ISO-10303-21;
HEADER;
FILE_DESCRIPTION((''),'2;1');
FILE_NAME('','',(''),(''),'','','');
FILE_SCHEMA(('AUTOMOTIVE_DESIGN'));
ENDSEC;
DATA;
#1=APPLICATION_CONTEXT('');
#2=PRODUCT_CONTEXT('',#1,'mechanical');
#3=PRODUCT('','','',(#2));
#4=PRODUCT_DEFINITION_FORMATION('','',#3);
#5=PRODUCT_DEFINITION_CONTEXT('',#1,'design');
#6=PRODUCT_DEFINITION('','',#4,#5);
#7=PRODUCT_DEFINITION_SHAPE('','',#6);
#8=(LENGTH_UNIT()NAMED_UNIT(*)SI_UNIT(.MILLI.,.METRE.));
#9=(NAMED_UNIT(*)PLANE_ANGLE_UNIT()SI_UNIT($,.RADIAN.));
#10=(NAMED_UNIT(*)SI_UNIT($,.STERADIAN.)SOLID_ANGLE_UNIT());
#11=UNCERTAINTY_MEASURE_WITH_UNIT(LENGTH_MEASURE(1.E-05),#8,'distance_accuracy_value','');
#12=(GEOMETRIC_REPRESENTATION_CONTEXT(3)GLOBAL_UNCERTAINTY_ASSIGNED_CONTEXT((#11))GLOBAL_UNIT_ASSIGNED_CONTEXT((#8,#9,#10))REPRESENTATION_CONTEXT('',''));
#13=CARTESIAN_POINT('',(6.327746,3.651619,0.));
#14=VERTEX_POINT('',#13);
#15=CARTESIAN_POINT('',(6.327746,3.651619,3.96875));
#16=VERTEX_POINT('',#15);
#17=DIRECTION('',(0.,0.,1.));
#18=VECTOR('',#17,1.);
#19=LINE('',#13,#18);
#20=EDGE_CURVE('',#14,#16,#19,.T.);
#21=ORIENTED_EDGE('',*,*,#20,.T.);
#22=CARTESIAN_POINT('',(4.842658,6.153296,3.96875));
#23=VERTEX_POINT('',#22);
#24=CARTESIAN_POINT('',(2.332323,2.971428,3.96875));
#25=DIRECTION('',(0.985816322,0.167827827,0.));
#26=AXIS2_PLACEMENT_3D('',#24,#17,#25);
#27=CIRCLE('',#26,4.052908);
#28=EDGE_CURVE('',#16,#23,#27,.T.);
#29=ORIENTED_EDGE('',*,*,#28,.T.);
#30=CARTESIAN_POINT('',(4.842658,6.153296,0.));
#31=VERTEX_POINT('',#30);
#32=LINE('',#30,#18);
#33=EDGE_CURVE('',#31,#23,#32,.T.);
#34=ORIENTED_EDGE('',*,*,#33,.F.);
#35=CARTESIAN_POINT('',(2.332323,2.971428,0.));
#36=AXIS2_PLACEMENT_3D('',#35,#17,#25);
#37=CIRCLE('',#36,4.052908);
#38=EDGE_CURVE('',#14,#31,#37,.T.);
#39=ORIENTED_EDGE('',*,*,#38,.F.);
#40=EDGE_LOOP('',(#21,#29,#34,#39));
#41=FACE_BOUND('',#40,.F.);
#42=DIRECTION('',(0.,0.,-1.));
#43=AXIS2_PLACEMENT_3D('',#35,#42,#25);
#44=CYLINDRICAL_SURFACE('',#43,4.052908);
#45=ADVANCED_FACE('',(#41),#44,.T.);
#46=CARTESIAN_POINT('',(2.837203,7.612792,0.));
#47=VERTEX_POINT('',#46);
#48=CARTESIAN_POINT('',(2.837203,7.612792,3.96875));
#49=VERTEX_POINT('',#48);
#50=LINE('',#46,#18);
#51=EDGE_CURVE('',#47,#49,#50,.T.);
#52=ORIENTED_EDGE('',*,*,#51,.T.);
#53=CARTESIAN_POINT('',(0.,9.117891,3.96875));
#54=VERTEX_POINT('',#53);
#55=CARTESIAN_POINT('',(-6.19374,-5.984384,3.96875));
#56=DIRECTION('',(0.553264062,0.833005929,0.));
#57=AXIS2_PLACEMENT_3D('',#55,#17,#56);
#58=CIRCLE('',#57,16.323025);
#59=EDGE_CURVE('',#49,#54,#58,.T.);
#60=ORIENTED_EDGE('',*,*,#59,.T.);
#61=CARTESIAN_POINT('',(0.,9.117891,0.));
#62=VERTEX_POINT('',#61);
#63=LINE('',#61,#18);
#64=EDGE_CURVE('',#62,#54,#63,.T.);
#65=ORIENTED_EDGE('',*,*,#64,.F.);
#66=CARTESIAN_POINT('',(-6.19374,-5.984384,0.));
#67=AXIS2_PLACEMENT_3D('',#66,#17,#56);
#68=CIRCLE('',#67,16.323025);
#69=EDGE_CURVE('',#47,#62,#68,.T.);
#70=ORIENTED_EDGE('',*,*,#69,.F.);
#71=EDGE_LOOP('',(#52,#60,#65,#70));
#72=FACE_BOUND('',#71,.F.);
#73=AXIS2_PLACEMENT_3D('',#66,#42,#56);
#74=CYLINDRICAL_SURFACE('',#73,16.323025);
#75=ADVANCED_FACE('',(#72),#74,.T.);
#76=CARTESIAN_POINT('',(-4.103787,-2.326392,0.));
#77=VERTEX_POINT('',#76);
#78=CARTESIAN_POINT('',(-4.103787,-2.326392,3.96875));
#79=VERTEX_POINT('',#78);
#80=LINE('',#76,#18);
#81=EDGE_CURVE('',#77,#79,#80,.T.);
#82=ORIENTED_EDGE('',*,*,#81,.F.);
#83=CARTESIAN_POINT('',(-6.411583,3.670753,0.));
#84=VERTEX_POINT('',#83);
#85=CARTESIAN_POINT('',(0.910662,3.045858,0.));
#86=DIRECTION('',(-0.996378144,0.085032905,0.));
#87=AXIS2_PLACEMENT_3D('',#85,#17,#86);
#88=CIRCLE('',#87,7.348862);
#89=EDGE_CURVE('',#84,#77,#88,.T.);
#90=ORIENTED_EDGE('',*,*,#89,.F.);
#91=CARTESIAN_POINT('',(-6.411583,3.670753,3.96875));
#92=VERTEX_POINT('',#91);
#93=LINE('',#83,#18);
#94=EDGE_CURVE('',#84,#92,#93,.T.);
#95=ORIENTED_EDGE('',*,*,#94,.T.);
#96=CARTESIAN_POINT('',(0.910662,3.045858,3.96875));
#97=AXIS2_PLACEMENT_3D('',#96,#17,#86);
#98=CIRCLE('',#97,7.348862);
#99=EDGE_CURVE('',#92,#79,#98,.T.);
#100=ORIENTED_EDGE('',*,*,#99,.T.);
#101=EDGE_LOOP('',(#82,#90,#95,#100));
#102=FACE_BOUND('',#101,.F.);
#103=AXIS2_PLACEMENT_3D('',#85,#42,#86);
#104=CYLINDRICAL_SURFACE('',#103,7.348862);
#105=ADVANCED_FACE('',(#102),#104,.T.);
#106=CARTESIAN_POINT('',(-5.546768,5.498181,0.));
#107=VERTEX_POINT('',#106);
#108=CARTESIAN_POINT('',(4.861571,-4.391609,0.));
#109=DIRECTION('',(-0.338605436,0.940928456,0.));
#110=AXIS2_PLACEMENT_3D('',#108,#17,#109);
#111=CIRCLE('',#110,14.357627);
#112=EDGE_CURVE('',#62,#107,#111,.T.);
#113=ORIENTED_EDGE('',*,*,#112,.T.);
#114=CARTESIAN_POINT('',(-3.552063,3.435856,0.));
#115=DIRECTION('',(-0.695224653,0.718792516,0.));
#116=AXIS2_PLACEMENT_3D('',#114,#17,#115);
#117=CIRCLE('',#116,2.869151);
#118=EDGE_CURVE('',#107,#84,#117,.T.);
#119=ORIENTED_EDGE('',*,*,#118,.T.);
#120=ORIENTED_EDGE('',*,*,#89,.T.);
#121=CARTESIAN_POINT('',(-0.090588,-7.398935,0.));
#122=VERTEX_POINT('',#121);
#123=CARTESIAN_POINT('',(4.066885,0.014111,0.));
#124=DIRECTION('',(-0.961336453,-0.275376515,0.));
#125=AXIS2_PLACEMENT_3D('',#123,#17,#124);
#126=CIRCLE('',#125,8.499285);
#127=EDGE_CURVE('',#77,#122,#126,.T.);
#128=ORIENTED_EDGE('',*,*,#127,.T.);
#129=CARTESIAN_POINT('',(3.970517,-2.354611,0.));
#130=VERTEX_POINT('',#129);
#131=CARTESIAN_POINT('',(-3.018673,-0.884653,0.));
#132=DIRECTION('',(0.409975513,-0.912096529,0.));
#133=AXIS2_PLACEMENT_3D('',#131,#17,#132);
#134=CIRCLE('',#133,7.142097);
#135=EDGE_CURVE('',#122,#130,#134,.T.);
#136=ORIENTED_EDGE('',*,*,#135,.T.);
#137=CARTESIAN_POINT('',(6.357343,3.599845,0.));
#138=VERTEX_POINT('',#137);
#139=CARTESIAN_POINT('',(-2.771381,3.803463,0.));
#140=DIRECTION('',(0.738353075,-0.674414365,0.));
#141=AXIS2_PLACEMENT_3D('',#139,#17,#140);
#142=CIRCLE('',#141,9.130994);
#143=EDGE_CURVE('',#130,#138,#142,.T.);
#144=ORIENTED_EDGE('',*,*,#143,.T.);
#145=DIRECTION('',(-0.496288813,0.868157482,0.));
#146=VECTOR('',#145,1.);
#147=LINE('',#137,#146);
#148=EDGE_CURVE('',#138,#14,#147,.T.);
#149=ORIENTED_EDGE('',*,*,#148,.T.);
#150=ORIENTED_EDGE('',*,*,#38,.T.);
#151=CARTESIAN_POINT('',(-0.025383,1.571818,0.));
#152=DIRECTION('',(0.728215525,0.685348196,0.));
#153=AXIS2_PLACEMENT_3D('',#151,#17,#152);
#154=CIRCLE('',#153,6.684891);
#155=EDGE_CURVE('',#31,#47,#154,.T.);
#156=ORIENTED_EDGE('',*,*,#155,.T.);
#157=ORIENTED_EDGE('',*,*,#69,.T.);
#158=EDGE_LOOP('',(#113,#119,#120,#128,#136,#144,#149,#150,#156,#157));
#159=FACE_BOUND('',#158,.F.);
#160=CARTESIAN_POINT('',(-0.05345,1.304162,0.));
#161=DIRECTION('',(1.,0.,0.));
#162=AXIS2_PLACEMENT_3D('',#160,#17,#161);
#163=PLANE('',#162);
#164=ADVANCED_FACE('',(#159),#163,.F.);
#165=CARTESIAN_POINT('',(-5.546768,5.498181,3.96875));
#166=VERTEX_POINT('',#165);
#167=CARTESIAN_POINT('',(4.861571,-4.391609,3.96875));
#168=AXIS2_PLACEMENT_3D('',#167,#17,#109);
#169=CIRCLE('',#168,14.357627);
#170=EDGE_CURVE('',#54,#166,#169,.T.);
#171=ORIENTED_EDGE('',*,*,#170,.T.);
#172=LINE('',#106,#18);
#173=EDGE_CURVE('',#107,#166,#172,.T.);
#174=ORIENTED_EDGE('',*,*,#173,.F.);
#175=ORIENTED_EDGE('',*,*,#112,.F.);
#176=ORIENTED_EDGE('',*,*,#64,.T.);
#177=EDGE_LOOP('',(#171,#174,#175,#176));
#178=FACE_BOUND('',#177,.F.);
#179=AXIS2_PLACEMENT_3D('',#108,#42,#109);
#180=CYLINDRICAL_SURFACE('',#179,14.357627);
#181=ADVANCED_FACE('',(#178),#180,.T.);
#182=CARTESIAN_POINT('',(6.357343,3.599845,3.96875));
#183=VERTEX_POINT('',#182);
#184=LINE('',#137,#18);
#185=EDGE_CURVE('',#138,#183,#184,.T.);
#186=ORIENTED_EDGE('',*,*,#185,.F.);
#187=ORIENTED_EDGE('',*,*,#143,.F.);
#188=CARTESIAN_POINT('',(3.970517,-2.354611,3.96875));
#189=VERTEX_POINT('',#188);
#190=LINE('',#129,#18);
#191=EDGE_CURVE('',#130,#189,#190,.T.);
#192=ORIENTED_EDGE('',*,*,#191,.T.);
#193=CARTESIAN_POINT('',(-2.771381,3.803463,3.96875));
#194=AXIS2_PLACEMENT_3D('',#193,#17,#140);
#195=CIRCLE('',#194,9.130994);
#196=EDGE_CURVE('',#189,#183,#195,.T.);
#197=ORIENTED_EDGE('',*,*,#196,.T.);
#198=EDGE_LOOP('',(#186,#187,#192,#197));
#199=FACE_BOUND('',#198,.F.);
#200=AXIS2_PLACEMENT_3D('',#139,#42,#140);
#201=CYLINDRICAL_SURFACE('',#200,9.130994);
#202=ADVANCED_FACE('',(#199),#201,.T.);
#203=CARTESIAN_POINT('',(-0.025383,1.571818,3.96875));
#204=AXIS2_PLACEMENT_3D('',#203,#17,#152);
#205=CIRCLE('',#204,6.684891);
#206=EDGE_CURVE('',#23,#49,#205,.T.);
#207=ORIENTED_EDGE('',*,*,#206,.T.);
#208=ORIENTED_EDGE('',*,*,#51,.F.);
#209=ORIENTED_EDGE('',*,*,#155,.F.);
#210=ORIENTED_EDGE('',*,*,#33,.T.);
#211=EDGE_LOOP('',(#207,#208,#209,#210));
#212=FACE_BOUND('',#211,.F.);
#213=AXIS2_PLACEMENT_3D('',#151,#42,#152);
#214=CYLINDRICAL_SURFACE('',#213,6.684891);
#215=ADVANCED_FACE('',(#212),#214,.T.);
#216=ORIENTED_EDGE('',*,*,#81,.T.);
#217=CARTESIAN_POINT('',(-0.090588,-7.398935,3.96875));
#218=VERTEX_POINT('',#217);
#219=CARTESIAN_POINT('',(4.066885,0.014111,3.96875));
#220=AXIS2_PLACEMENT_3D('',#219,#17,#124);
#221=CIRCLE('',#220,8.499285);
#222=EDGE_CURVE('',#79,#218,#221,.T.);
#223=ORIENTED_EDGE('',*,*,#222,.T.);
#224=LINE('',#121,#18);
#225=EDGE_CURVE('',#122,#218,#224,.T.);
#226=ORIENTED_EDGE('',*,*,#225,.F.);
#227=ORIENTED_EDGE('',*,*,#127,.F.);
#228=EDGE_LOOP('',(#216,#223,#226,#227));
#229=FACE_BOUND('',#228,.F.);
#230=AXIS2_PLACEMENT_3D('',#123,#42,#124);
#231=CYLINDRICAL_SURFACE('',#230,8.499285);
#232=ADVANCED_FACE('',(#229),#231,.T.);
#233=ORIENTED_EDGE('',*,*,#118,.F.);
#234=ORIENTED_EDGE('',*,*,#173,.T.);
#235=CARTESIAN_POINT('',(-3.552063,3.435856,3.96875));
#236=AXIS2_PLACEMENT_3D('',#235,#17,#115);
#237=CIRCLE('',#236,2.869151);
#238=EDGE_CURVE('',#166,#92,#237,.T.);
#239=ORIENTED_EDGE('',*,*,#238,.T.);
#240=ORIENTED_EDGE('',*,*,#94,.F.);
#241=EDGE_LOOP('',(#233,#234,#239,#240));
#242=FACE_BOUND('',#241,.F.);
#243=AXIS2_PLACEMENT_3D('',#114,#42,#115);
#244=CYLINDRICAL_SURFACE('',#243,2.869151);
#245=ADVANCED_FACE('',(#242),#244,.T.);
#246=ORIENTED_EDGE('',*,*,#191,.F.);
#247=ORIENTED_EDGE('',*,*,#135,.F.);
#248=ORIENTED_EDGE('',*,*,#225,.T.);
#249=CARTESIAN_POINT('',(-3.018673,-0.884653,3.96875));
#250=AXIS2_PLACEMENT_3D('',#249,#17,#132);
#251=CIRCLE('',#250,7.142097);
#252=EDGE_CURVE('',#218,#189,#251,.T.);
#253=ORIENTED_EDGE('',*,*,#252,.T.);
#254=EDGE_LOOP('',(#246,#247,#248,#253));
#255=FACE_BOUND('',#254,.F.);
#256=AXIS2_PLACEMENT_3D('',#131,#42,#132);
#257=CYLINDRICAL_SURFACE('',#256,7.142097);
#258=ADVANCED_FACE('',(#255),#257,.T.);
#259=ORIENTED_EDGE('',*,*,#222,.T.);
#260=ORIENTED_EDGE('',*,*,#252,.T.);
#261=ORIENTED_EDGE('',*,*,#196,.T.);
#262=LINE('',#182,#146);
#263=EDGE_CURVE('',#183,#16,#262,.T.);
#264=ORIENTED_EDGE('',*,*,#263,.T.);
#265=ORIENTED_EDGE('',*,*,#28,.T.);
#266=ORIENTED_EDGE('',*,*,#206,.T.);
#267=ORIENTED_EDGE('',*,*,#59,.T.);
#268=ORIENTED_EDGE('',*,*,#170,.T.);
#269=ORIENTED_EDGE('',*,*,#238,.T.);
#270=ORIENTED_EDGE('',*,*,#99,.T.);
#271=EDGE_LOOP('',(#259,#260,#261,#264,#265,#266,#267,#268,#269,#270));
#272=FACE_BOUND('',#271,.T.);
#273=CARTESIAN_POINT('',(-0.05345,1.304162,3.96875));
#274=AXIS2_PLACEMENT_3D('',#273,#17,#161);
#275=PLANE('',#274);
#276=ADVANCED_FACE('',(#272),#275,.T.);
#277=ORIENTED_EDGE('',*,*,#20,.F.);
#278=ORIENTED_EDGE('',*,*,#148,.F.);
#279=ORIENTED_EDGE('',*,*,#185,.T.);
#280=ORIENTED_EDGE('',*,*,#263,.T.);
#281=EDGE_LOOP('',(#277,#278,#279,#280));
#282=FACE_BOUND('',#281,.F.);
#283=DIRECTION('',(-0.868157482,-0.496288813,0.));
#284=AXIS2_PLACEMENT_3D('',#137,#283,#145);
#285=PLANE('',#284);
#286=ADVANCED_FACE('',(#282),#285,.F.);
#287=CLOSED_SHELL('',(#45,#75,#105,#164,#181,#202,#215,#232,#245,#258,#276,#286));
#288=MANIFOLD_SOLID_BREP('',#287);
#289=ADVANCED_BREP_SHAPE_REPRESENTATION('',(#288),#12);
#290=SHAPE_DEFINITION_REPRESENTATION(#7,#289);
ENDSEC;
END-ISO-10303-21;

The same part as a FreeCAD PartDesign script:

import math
import FreeCAD as App
import Part
import Sketcher
from FreeCAD import Vector
Q = App.Units.Quantity

doc = App.newDocument("Part")
body = doc.addObject("PartDesign::Body", "Body")

# Sketch on XY plane
sketch1 = body.newObject("Sketcher::SketchObject", "Sketch")
sketch1.AttachmentSupport = (doc.getObject("XY_Plane"), [""])
sketch1.MapMode = "FlatFace"
sketch1.addGeometry(Part.ArcOfCircle(Part.Circle(Vector(2.33, 2.97, 0), Vector(0, 0, 1), 4.05), math.radians(10), math.radians(52)), False)
sketch1.addGeometry(Part.ArcOfCircle(Part.Circle(Vector(-0.03, 1.57, 0), Vector(0, 0, 1), 6.68), math.radians(43), math.radians(65)), False)
sketch1.addGeometry(Part.ArcOfCircle(Part.Circle(Vector(-6.19, -5.98, 0), Vector(0, 0, 1), 16.32), math.radians(56.41), math.radians(67.7)), False)
sketch1.addGeometry(Part.ArcOfCircle(Part.Circle(Vector(4.86, -4.39, 0), Vector(0, 0, 1), 14.36), math.radians(110), math.radians(136)), False)
sketch1.addGeometry(Part.ArcOfCircle(Part.Circle(Vector(-3.55, 3.44, 0), Vector(0, 0, 1), 2.87), math.radians(134), math.radians(175)), False)
sketch1.addGeometry(Part.ArcOfCircle(Part.Circle(Vector(0.91, 3.05, 0), Vector(0, 0, 1), 7.35), math.radians(175), math.radians(227)), False)
sketch1.addGeometry(Part.ArcOfCircle(Part.Circle(Vector(4.07, 0.01, 0), Vector(0, 0, 1), 8.5), math.radians(-164), math.radians(-119)), False)
sketch1.addGeometry(Part.ArcOfCircle(Part.Circle(Vector(-3.02, -0.88, 0), Vector(0, 0, 1), 7.14), math.radians(-66), math.radians(-12)), False)
sketch1.addGeometry(Part.ArcOfCircle(Part.Circle(Vector(-2.77, 3.8, 0), Vector(0, 0, 1), 9.13), math.radians(-42), math.radians(-1)), False)
sketch1.addGeometry(Part.LineSegment(Vector(6.36, 3.6, 0), Vector(6.33, 3.65, 0)), False)
sketch1.addConstraint(Sketcher.Constraint("Coincident", 0, 2, 1, 1))
sketch1.addConstraint(Sketcher.Constraint("Coincident", 1, 2, 2, 1))
sketch1.addConstraint(Sketcher.Constraint("Coincident", 2, 2, 3, 1))
sketch1.addConstraint(Sketcher.Constraint("Coincident", 3, 2, 4, 1))
sketch1.addConstraint(Sketcher.Constraint("Coincident", 4, 2, 5, 1))
sketch1.addConstraint(Sketcher.Constraint("Coincident", 5, 2, 6, 1))
sketch1.addConstraint(Sketcher.Constraint("Coincident", 6, 2, 7, 1))
sketch1.addConstraint(Sketcher.Constraint("Coincident", 7, 2, 8, 1))
sketch1.addConstraint(Sketcher.Constraint("Coincident", 8, 2, 9, 1))
sketch1.addConstraint(Sketcher.Constraint("Coincident", 9, 2, 0, 1))
sketch1.addConstraint(Sketcher.Constraint("PointOnObject", 2, 2, -2))
sketch1.addConstraint(Sketcher.Constraint("Radius", 0, 4.052908))
sketch1.addConstraint(Sketcher.Constraint("Radius", 1, 6.684891))
sketch1.addConstraint(Sketcher.Constraint("Radius", 4, 2.869151))
sketch1.addConstraint(Sketcher.Constraint("DistanceX", 5, 2, 6, 2, Q("0.158 in")))
sketch1.addConstraint(Sketcher.Constraint("Radius", 2, 16.323025))
sketch1.addConstraint(Sketcher.Constraint("Radius", 3, 14.357627))
sketch1.addConstraint(Sketcher.Constraint("Radius", 5, 7.348862))
sketch1.addConstraint(Sketcher.Constraint("Radius", 6, 8.499285))
sketch1.addConstraint(Sketcher.Constraint("Radius", 7, 7.142097))
sketch1.addConstraint(Sketcher.Constraint("Radius", 8, 9.130994))
sketch1.addConstraint(Sketcher.Constraint("DistanceY", 6, 3, 0, 2, Q("0.2417002 in")))
sketch1.addConstraint(Sketcher.Constraint("DistanceX", 0, 3, 9, 2, Q("0.1573001 in")))
sketch1.addConstraint(Sketcher.Constraint("DistanceY", 5, 3, 4, 3, 0.389999))
sketch1.addConstraint(Sketcher.Constraint("DistanceY", 1, 2, 2, 2, 1.505099))
sketch1.addConstraint(Sketcher.Constraint("DistanceX", 4, 2, 1, 3, 6.3862))
sketch1.addConstraint(Sketcher.Constraint("DistanceX", 1, 3, 7, 2, 3.9959))
sketch1.addConstraint(Sketcher.Constraint("DistanceY", -1, 1, 0, 3, 2.971428))
sketch1.addConstraint(Sketcher.Constraint("DistanceY", -1, 1, 1, 3, 1.571818))
sketch1.addConstraint(Sketcher.Constraint("DistanceX", 2, 3, -1, 1, 6.19374))
sketch1.addConstraint(Sketcher.Constraint("DistanceX", -1, 1, 3, 3, 4.861571))
sketch1.addConstraint(Sketcher.Constraint("DistanceY", 3, 3, -1, 1, 4.391609))
sketch1.addConstraint(Sketcher.Constraint("DistanceY", -1, 1, 6, 3, 0.014111))
sketch1.addConstraint(Sketcher.Constraint("DistanceX", 8, 3, -1, 1, 2.771381))
sketch1.addConstraint(Sketcher.Constraint("DistanceY", -1, 1, 3, 2, 5.498181))
sketch1.addConstraint(Sketcher.Constraint("DistanceX", 6, 2, -1, 1, 0.090588))
sketch1.addConstraint(Sketcher.Constraint("DistanceY", 7, 2, -1, 1, 2.354611))
sketch1.addConstraint(Sketcher.Constraint("DistanceX", 4, 3, 1, 3, 3.52668))
sketch1.addConstraint(Sketcher.Constraint("DistanceY", 8, 2, 0, 2, 2.553451))
pad1 = body.newObject("PartDesign::Pad", "Pad")
pad1.Profile = sketch1
pad1.Length = Q("0.15625 in")

doc.recompute()
